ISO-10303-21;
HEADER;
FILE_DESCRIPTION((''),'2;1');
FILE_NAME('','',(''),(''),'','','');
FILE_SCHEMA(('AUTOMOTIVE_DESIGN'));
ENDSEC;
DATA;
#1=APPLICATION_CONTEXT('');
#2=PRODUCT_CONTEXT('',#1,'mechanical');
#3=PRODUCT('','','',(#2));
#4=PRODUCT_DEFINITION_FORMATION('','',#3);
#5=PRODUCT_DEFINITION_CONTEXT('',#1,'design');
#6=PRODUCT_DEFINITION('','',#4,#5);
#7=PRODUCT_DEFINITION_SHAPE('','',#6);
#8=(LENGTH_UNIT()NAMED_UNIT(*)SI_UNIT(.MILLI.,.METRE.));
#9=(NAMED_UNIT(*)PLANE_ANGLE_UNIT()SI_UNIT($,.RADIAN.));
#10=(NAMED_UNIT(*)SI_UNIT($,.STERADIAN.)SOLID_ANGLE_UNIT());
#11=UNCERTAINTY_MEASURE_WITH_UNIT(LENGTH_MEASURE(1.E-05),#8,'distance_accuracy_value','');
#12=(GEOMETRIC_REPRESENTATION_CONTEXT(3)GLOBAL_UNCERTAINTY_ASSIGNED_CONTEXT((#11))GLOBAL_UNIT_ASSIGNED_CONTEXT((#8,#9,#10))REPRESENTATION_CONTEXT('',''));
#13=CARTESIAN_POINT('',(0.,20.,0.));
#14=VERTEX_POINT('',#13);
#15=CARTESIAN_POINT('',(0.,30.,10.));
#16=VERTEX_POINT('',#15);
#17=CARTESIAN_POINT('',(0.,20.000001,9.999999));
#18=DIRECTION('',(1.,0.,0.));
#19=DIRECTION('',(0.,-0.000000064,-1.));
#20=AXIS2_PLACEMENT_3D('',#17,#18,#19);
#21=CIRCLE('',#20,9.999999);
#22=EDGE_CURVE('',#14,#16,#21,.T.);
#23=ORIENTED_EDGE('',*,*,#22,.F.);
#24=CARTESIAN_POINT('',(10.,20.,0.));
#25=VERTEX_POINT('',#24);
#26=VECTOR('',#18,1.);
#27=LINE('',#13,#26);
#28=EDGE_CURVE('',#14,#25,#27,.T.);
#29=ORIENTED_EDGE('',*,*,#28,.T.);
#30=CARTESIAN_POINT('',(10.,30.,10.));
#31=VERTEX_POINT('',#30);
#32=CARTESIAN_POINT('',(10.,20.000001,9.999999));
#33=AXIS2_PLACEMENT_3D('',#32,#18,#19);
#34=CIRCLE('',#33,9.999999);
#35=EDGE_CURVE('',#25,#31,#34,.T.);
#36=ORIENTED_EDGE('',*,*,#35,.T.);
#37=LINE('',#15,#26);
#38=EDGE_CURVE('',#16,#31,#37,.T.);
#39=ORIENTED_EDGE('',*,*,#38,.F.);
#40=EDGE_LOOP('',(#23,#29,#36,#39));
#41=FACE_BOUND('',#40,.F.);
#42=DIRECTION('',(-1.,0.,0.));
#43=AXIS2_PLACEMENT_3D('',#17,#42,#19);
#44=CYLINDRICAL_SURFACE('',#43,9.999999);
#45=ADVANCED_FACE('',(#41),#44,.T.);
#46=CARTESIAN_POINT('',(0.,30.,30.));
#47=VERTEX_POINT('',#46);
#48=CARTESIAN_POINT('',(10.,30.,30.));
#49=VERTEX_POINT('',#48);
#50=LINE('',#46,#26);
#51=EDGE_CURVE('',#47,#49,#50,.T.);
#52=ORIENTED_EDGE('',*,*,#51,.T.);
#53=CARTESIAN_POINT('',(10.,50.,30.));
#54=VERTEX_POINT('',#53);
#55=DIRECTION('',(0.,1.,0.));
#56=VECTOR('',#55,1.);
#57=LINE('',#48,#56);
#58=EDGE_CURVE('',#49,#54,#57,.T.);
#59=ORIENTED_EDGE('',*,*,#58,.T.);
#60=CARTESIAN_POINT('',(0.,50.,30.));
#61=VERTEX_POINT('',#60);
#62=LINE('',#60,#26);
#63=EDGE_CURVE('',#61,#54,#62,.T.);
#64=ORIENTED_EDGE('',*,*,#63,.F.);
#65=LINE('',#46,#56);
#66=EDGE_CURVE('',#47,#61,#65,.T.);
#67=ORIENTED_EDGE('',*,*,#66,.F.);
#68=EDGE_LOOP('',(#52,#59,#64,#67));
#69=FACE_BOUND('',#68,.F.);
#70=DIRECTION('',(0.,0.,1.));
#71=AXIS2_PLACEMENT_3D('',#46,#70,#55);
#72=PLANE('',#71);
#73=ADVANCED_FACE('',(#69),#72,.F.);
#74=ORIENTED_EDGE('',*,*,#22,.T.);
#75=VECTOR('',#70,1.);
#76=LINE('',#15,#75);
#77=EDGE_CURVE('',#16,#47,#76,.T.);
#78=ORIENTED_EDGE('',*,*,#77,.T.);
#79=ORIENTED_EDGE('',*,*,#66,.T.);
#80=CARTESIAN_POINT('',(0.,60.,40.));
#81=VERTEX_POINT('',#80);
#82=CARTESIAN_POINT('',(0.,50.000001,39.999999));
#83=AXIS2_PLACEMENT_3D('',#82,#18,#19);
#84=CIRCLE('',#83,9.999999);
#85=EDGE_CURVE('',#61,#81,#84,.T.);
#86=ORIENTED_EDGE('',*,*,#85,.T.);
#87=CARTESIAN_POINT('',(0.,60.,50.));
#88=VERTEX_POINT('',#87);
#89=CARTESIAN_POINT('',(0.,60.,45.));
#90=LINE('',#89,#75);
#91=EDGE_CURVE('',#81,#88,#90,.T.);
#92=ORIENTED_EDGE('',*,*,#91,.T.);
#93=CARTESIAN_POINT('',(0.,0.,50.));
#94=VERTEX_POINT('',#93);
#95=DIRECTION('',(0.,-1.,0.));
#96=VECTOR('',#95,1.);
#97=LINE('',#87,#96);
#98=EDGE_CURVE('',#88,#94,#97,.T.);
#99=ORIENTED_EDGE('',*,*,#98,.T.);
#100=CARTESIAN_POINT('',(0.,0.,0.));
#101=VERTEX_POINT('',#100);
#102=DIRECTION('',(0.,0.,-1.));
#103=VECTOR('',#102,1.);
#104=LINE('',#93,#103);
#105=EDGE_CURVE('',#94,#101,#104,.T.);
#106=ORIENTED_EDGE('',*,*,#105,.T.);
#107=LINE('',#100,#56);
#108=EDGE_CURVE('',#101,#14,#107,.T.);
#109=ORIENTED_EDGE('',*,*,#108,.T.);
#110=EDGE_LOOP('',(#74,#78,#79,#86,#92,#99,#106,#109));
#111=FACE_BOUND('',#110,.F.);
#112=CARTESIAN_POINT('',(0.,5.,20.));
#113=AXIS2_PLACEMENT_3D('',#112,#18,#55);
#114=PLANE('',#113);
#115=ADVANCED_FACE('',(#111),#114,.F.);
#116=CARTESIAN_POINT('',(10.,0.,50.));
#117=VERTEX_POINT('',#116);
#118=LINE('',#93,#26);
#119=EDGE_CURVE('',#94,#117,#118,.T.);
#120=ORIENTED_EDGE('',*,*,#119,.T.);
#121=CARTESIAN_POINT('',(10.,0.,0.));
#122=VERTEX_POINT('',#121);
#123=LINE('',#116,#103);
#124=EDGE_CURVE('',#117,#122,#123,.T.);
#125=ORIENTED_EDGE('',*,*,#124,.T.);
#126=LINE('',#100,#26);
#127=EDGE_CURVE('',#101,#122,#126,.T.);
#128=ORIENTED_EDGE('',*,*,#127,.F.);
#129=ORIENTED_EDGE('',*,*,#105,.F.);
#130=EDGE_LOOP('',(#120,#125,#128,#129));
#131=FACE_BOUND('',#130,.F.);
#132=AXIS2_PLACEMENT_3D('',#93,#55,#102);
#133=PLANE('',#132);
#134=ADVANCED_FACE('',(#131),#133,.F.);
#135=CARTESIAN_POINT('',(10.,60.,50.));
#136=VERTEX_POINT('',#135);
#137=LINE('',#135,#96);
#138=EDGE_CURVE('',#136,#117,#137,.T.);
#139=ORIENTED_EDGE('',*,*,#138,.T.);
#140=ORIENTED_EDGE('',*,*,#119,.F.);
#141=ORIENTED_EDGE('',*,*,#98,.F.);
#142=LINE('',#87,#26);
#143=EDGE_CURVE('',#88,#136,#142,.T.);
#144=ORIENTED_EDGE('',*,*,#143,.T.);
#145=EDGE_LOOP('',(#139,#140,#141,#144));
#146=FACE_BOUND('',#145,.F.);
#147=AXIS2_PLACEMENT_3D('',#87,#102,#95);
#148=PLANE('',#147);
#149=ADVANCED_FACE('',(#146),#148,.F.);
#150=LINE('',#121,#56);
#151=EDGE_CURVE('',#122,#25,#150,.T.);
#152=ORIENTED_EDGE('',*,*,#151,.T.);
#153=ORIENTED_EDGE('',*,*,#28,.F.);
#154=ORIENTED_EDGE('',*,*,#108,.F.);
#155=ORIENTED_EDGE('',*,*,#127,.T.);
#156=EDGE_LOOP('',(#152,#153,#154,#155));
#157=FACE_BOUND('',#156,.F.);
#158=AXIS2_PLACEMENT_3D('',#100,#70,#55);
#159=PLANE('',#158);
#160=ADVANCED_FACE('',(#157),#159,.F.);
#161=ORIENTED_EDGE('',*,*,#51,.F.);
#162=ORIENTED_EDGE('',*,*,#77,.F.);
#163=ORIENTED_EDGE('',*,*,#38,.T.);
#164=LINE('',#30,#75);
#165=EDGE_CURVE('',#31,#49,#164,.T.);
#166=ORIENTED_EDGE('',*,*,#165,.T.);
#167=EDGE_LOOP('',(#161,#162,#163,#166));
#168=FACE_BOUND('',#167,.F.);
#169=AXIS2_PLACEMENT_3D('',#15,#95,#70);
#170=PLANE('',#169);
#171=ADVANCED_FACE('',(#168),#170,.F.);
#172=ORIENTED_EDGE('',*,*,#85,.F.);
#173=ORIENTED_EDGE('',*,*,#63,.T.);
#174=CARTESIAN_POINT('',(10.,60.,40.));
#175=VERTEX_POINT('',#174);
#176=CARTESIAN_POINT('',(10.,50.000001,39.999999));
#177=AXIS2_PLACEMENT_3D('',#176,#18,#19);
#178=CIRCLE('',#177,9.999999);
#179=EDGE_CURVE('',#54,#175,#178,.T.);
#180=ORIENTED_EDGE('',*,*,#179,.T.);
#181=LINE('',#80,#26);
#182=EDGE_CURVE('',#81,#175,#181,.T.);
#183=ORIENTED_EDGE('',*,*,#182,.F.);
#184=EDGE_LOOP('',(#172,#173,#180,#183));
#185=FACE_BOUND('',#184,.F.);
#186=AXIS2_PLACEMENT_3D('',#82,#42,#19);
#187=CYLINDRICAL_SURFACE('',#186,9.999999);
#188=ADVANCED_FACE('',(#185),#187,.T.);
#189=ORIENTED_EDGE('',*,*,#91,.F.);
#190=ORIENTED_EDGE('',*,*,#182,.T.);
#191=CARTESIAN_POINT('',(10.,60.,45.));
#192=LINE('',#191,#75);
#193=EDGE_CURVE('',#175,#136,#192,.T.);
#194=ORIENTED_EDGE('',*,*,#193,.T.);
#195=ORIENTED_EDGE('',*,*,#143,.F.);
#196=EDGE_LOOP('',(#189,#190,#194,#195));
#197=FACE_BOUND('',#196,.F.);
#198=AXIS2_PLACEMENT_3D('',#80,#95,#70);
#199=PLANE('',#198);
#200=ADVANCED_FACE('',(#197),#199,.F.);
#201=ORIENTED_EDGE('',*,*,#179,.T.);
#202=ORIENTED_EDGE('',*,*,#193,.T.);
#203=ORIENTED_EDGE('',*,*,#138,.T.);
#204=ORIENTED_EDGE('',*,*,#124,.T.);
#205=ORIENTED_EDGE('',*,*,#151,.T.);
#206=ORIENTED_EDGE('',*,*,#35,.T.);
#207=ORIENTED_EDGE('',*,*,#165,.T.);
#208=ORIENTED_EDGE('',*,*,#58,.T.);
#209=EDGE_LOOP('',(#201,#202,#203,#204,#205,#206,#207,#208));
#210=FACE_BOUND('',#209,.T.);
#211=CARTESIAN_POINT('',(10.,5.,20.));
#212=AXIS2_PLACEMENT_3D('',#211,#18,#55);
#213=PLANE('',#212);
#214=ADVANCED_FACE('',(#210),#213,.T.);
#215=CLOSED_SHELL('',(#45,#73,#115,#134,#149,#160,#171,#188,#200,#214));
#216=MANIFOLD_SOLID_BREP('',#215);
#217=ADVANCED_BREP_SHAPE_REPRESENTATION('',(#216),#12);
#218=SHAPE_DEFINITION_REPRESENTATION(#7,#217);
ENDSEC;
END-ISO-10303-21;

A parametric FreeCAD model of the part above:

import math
import FreeCAD as App
import Part
import Sketcher
from FreeCAD import Vector
Q = App.Units.Quantity

doc = App.newDocument("Part")
body = doc.addObject("PartDesign::Body", "Body")

sketch1 = doc.addObject("Sketcher::SketchObject", "Sketch")
body.addObject(sketch1)
sketch1.AttachmentSupport = (doc.YZ_Plane, [""])
sketch1.MapMode = "FlatFace"
sketch1.addGeometry(Part.LineSegment(Vector(0, 0, 0), Vector(20, 0, 0)), False)
sketch1.addGeometry(Part.ArcOfCircle(Part.Circle(Vector(20, 10, 0), Vector(0, 0, 1), 10), math.radians(-90), math.radians(0)), False)
sketch1.addGeometry(Part.LineSegment(Vector(30, 10, 0), Vector(30, 30, 0)), False)
sketch1.addGeometry(Part.LineSegment(Vector(30, 30, 0), Vector(50, 30, 0)), False)
sketch1.addGeometry(Part.ArcOfCircle(Part.Circle(Vector(50, 40, 0), Vector(0, 0, 1), 10), math.radians(-90), math.radians(0)), False)
sketch1.addGeometry(Part.LineSegment(Vector(60, 40, 0), Vector(60, 50, 0)), False)
sketch1.addGeometry(Part.LineSegment(Vector(60, 50, 0), Vector(0, 50, 0)), False)
sketch1.addGeometry(Part.LineSegment(Vector(0, 50, 0), Vector(0, 0, 0)), False)
sketch1.addConstraint(Sketcher.Constraint("Tangent", 0, 2, 1, 1))
sketch1.addConstraint(Sketcher.Constraint("Tangent", 1, 2, 2, 1))
sketch1.addConstraint(Sketcher.Constraint("Coincident", 2, 2, 3, 1))
sketch1.addConstraint(Sketcher.Constraint("Tangent", 3, 2, 4, 1))
sketch1.addConstraint(Sketcher.Constraint("Tangent", 4, 2, 5, 1))
sketch1.addConstraint(Sketcher.Constraint("Coincident", 5, 2, 6, 1))
sketch1.addConstraint(Sketcher.Constraint("Coincident", 6, 2, 7, 1))
sketch1.addConstraint(Sketcher.Constraint("Coincident", 7, 2, 0, 1))
sketch1.addConstraint(Sketcher.Constraint("Horizontal", 0))
sketch1.addConstraint(Sketcher.Constraint("Vertical", 2))
sketch1.addConstraint(Sketcher.Constraint("Horizontal", 3))
sketch1.addConstraint(Sketcher.Constraint("Vertical", 5))
sketch1.addConstraint(Sketcher.Constraint("Horizontal", 6))
sketch1.addConstraint(Sketcher.Constraint("Vertical", 7))
sketch1.addConstraint(Sketcher.Constraint("Coincident", 7, 2, -1, 1))
sketch1.addConstraint(Sketcher.Constraint("Equal", 1, 4))
sketch1.addConstraint(Sketcher.Constraint("Equal", 0, 3))
sketch1.addConstraint(Sketcher.Constraint("Equal", 3, 2))
sketch1.addConstraint(Sketcher.Constraint("Radius", 1, Q("9.999999 mm")))
sketch1.addConstraint(Sketcher.Constraint("DistanceX", 0, 1, 0, 2, Q("20 mm")))
sketch1.addConstraint(Sketcher.Constraint("DistanceY", 5, 1, 5, 2, Q("10 mm")))
pad1 = doc.addObject("PartDesign::Pad", "Pad")
body.addObject(pad1)
pad1.Profile = sketch1
pad1.Length = 10

doc.recompute()
